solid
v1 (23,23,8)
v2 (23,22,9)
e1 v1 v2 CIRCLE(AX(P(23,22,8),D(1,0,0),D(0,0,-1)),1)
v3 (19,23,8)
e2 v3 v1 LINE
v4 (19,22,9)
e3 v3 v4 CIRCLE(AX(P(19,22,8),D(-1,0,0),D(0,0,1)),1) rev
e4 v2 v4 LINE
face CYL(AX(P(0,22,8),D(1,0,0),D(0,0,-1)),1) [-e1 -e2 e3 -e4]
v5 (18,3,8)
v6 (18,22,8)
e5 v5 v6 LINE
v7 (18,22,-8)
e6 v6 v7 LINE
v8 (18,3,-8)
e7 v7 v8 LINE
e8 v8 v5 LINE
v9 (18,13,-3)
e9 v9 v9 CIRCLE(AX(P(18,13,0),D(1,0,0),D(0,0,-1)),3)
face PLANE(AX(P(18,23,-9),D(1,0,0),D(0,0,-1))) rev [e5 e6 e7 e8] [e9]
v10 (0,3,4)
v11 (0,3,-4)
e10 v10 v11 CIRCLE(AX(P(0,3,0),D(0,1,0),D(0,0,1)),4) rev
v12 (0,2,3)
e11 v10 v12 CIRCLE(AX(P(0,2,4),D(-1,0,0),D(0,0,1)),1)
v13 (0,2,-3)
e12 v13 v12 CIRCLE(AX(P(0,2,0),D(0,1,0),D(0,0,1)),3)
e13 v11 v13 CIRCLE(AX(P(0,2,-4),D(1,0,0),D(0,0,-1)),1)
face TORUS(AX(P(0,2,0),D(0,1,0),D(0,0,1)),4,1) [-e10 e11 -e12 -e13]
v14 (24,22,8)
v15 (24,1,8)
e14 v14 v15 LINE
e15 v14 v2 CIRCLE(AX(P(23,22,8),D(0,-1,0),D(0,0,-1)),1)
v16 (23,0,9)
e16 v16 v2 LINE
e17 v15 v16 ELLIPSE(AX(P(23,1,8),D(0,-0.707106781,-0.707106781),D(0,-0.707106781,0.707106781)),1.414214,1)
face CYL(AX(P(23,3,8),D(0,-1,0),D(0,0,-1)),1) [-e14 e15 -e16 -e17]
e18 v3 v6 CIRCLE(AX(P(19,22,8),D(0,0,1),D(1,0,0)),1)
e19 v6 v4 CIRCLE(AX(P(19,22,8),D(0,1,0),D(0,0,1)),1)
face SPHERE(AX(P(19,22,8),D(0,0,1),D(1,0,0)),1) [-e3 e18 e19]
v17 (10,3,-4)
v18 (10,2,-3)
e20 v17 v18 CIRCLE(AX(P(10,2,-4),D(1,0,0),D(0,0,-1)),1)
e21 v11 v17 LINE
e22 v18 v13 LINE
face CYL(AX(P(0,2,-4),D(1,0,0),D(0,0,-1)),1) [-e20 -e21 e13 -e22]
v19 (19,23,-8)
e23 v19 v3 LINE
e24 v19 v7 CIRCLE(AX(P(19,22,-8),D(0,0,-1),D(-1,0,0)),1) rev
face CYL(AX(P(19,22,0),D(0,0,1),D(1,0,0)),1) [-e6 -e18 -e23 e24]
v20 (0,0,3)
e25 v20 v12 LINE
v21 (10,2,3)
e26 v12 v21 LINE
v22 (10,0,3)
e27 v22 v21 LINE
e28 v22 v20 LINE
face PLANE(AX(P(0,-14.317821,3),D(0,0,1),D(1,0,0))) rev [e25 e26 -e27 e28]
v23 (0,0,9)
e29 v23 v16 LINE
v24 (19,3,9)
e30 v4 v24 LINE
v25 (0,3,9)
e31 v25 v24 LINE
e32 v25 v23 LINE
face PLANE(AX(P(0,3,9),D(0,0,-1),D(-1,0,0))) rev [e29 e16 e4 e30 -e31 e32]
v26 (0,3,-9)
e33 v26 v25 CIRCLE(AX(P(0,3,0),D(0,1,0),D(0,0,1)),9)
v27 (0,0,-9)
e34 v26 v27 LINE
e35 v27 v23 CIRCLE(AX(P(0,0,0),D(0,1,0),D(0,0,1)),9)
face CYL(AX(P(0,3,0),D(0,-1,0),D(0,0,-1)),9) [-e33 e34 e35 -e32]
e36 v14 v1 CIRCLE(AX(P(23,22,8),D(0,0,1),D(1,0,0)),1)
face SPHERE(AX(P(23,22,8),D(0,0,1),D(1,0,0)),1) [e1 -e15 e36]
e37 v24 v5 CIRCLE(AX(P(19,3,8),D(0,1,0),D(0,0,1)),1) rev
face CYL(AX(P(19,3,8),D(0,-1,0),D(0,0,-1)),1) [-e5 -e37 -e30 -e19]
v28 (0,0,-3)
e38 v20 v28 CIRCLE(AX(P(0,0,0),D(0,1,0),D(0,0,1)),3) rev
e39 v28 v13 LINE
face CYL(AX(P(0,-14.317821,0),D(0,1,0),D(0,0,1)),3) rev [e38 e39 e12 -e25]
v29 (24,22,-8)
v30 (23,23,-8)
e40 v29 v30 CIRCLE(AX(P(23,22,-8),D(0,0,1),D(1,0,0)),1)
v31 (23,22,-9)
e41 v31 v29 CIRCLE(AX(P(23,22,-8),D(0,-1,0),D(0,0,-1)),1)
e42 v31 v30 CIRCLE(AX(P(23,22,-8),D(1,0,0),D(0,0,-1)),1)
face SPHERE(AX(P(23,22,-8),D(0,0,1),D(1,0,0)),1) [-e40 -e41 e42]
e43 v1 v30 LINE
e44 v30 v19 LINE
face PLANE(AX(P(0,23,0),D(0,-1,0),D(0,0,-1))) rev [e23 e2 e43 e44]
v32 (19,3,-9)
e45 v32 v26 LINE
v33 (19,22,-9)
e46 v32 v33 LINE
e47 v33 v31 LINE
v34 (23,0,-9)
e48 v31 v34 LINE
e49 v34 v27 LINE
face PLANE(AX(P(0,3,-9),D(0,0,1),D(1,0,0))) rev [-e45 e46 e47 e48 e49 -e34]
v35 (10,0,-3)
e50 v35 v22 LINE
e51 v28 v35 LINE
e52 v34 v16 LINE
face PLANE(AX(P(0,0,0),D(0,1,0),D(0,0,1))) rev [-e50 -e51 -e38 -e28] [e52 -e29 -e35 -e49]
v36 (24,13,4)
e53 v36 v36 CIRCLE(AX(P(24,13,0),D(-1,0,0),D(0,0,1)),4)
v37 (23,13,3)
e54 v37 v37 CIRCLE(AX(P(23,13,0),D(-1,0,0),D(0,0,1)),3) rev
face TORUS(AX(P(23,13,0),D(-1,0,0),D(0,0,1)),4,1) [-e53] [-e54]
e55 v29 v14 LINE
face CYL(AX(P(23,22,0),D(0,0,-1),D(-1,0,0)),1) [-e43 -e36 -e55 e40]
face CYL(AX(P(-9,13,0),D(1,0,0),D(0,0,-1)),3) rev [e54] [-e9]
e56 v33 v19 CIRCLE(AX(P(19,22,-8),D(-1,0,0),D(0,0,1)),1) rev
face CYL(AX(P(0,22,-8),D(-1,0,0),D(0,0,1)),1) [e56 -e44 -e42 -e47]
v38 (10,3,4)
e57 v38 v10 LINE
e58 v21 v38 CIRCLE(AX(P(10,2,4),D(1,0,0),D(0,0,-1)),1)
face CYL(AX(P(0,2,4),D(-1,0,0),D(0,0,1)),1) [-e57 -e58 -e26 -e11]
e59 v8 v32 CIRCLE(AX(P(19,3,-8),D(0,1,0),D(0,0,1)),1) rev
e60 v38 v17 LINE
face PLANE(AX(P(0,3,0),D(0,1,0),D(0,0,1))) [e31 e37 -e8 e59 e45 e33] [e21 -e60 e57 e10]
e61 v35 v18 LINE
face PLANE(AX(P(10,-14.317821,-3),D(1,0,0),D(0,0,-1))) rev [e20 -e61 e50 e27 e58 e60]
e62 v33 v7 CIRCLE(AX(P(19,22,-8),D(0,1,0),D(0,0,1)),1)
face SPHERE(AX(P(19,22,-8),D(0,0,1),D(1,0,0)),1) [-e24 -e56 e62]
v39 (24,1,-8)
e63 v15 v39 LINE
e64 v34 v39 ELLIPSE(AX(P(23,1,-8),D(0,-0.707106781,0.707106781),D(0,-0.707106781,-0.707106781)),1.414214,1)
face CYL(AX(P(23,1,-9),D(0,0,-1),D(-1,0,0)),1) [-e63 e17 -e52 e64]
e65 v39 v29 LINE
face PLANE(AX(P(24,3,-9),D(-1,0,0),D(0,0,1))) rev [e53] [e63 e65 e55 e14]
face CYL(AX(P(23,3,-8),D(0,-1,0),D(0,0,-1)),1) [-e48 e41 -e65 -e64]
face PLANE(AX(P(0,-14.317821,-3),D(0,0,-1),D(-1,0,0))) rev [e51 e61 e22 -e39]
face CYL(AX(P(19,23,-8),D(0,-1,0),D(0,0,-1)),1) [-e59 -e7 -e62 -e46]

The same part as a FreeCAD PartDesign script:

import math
import FreeCAD as App
import Part
import Sketcher


def edges_at(feature, points):
    """Names of the edges that pass closest to the given points."""
    edges = feature.Shape.Edges
    near = lambda p: min(range(len(edges)), key=lambda i: edges[i].distToShape(Part.Vertex(*p))[0])
    return sorted({f"Edge{near(p) + 1}" for p in points})

doc = App.newDocument("Part")
params = doc.addObject("Spreadsheet::Sheet", "Params")
for row, (alias, value) in enumerate([
    ("sketch1_radius", "9 mm"),
    ("sketch1_width", "24 mm"),
    ("pad1_length", "3 mm"),
    ("sketch2_radius", "3 mm"),
    ("sketch2_width", "10 mm"),
    ("pocket1_length", "3 mm"),
    ("sketch3_width", "6 mm"),
    ("sketch3_height", "18 mm"),
    ("pad2_length", "20 mm"),
    ("fillet_radius", "1 mm"),
    ("fillet2_radius", "1 mm"),
    ("fillet3_radius", "1 mm"),
    ("sketch4_diameter", "6 mm"),
    ("fillet4_radius", "1 mm"),
], start=1):
    params.set(f"A{row}", alias)
    params.set(f"B{row}", "=" + value)
    params.setAlias(f"B{row}", alias)

body = doc.addObject("PartDesign::Body", "Body")

# Sketch on XZ plane
sketch1 = body.newObject("Sketcher::SketchObject", "Sketch")
sketch1.AttachmentSupport = (doc.getObject("XZ_Plane"), [""])
sketch1.MapMode = "FlatFace"
sketch1.addGeometry(Part.LineSegment(App.Vector(24, -9, 0), App.Vector(0, -9, 0)), False)
sketch1.addGeometry(Part.ArcOfCircle(Part.Circle(App.Vector(0, 0, 0), App.Vector(0, 0, 1), 9), math.radians(90), math.radians(270)), False)
sketch1.addGeometry(Part.LineSegment(App.Vector(0, 9, 0), App.Vector(24, 9, 0)), False)
sketch1.addGeometry(Part.LineSegment(App.Vector(24, 9, 0), App.Vector(24, -9, 0)), False)
sketch1.addConstraint(Sketcher.Constraint("Tangent", 0, 2, 1, 2))
sketch1.addConstraint(Sketcher.Constraint("Tangent", 1, 1, 2, 1))
sketch1.addConstraint(Sketcher.Constraint("Coincident", 2, 2, 3, 1))
sketch1.addConstraint(Sketcher.Constraint("Coincident", 3, 2, 0, 1))
sketch1.addConstraint(Sketcher.Constraint("Horizontal", 0))
sketch1.addConstraint(Sketcher.Constraint("Horizontal", 2))
sketch1.addConstraint(Sketcher.Constraint("Vertical", 3))
sketch1.addConstraint(Sketcher.Constraint("Coincident", 1, 3, -1, 1))
sketch1.addConstraint(Sketcher.Constraint("Radius", 1, 9.0))
sketch1.addConstraint(Sketcher.Constraint("DistanceX", 0, 2, 0, 1, 24.0))
sketch1.setExpression("Constraints[8]", "Params.sketch1_radius")
sketch1.setExpression("Constraints[9]", "Params.sketch1_width")
pad1 = body.newObject("PartDesign::Pad", "Pad")
pad1.Profile = sketch1
pad1.setExpression("Length", "Params.pad1_length")
pad1.Reversed = True

# Sketch on XZ plane
sketch2 = body.newObject("Sketcher::SketchObject", "Sketch001")
sketch2.AttachmentSupport = (doc.getObject("XZ_Plane"), [""])
sketch2.MapMode = "FlatFace"
sketch2.AttachmentOffset = App.Placement(App.Vector(0, 0, -3), App.Rotation())
sketch2.addGeometry(Part.LineSegment(App.Vector(10, -3, 0), App.Vector(0, -3, 0)), False)
sketch2.addGeometry(Part.ArcOfCircle(Part.Circle(App.Vector(0, 0, 0), App.Vector(0, 0, 1), 3), math.radians(90), math.radians(270)), False)
sketch2.addGeometry(Part.LineSegment(App.Vector(0, 3, 0), App.Vector(10, 3, 0)), False)
sketch2.addGeometry(Part.LineSegment(App.Vector(10, 3, 0), App.Vector(10, -3, 0)), False)
sketch2.addConstraint(Sketcher.Constraint("Tangent", 0, 2, 1, 2))
sketch2.addConstraint(Sketcher.Constraint("Tangent", 1, 1, 2, 1))
sketch2.addConstraint(Sketcher.Constraint("Coincident", 2, 2, 3, 1))
sketch2.addConstraint(Sketcher.Constraint("Coincident", 3, 2, 0, 1))
sketch2.addConstraint(Sketcher.Constraint("Horizontal", 0))
sketch2.addConstraint(Sketcher.Constraint("Horizontal", 2))
sketch2.addConstraint(Sketcher.Constraint("Vertical", 3))
sketch2.addConstraint(Sketcher.Constraint("Coincident", 1, 3, -1, 1))
sketch2.addConstraint(Sketcher.Constraint("Radius", 1, 3.0))
sketch2.addConstraint(Sketcher.Constraint("DistanceX", 0, 2, 0, 1, 10.0))
sketch2.setExpression("Constraints[8]", "Params.sketch2_radius")
sketch2.setExpression("Constraints[9]", "Params.sketch2_width")
pocket1 = body.newObject("PartDesign::Pocket", "Pocket")
pocket1.Profile = sketch2
pocket1.setExpression("Length", "Params.pocket1_length")
pocket1.Reversed = True

# Sketch on XZ plane
sketch3 = body.newObject("Sketcher::SketchObject", "Sketch002")
sketch3.AttachmentSupport = (doc.getObject("XZ_Plane"), [""])
sketch3.MapMode = "FlatFace"
sketch3.AttachmentOffset = App.Placement(App.Vector(0, 0, -3), App.Rotation())
sketch3.addGeometry(Part.LineSegment(App.Vector(18, -9, 0), App.Vector(18, 9, 0)), False)
sketch3.addGeometry(Part.LineSegment(App.Vector(18, 9, 0), App.Vector(24, 9, 0)), False)
sketch3.addGeometry(Part.LineSegment(App.Vector(24, 9, 0), App.Vector(24, -9, 0)), False)
sketch3.addGeometry(Part.LineSegment(App.Vector(24, -9, 0), App.Vector(18, -9, 0)), False)
sketch3.addConstraint(Sketcher.Constraint("Coincident", 0, 2, 1, 1))
sketch3.addConstraint(Sketcher.Constraint("Coincident", 1, 2, 2, 1))
sketch3.addConstraint(Sketcher.Constraint("Coincident", 2, 2, 3, 1))
sketch3.addConstraint(Sketcher.Constraint("Coincident", 3, 2, 0, 1))
sketch3.addConstraint(Sketcher.Constraint("Vertical", 0))
sketch3.addConstraint(Sketcher.Constraint("Horizontal", 1))
sketch3.addConstraint(Sketcher.Constraint("Vertical", 2))
sketch3.addConstraint(Sketcher.Constraint("Horizontal", 3))
sketch3.addConstraint(Sketcher.Constraint("DistanceX", 1, 1, 1, 2, 6.0))
sketch3.addConstraint(Sketcher.Constraint("DistanceY", 0, 1, 0, 2, 18.0))
sketch3.addConstraint(Sketcher.Constraint("DistanceX", -1, 1, 0, 2, 18.0))
sketch3.addConstraint(Sketcher.Constraint("DistanceY", -1, 1, 0, 2, 9.0))
sketch3.setExpression("Constraints[8]", "Params.sketch3_width")
sketch3.setExpression("Constraints[9]", "Params.sketch3_height")
pad2 = body.newObject("PartDesign::Pad", "Pad001")
pad2.Profile = sketch3
pad2.setExpression("Length", "Params.pad2_length")
pad2.Reversed = True
doc.recompute()

fillet = body.newObject("PartDesign::Fillet", "Fillet")
fillet.Base = (pad2, edges_at(pad2, [(24, 0, 0), (24, 11.5, 9), (24, 11.5, -9)]))
fillet.setExpression("Radius", "Params.fillet_radius")
doc.recompute()

fillet2 = body.newObject("PartDesign::Fillet", "Fillet001")
fillet2.Base = (fillet, edges_at(fillet, [
    (23.707, 23, 8.707),
    (23.707, 23, -8.707),
    (18, 23, 0),
    (20.5, 23, -9),
    (20.5, 23, 9),
    (24, 23, 0),
    (18, 13, 9),
    (18, 13, -9),
]))
fillet2.setExpression("Radius", "Params.fillet2_radius")
doc.recompute()

fillet3 = body.newObject("PartDesign::Fillet", "Fillet002")
fillet3.Base = (fillet2, edges_at(fillet2, [(-3, 3, 0), (5, 3, 3), (5, 3, -3)]))
fillet3.setExpression("Radius", "Params.fillet3_radius")

# Sketch on YZ plane
sketch4 = body.newObject("Sketcher::SketchObject", "Sketch003")
sketch4.AttachmentSupport = (doc.getObject("YZ_Plane"), [""])
sketch4.MapMode = "FlatFace"
sketch4.AttachmentOffset = App.Placement(App.Vector(0, 0, 24), App.Rotation())
sketch4.addGeometry(Part.Circle(App.Vector(13, 0, 0), App.Vector(0, 0, 1), 3), False)
sketch4.addConstraint(Sketcher.Constraint("PointOnObject", 0, 3, -1))
sketch4.addConstraint(Sketcher.Constraint("Diameter", 0, 6.0))
sketch4.addConstraint(Sketcher.Constraint("DistanceX", -1, 1, 0, 3, 13.0))
sketch4.setExpression("Constraints[1]", "Params.sketch4_diameter")
pocket2 = body.newObject("PartDesign::Pocket", "Pocket001")
pocket2.Profile = sketch4
pocket2.Type = "ThroughAll"
doc.recompute()

fillet4 = body.newObject("PartDesign::Fillet", "Fillet003")
fillet4.Base = (pocket2, edges_at(pocket2, [(24, 13, 3)]))
fillet4.setExpression("Radius", "Params.fillet4_radius")

doc.recompute()
